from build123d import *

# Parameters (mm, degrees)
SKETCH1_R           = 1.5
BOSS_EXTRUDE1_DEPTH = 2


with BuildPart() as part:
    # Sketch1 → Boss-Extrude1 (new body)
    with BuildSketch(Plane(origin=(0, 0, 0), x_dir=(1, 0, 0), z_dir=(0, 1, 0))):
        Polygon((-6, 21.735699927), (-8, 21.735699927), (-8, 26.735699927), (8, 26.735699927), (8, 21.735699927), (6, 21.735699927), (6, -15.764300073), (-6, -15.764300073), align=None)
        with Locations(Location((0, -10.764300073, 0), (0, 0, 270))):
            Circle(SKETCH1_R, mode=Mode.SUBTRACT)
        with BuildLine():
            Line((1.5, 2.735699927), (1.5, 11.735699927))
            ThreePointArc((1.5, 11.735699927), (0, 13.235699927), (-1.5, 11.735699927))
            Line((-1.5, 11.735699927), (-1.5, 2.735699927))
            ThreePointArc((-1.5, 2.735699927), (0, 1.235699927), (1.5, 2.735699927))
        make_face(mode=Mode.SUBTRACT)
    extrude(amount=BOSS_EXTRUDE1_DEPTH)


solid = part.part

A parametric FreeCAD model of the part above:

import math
import FreeCAD as App
import Part
import Sketcher


def add_polygon(sketch, points):
    """Adds a closed chain of lines whose ends are joined by coincident constraints."""
    first, n = sketch.GeometryCount, len(points)
    for a, b in zip(points, points[1:] + points[:1]):
        sketch.addGeometry(Part.LineSegment(App.Vector(*a, 0), App.Vector(*b, 0)), False)
    for i in range(n):
        sketch.addConstraint(Sketcher.Constraint("Coincident", first + i, 2, first + (i + 1) % n, 1))

doc = App.newDocument("Part")
body = doc.addObject("PartDesign::Body", "Body")

sketch1 = body.newObject("Sketcher::SketchObject", "Sketch")
sketch1.AttachmentSupport = (doc.getObject("XZ_Plane"), [""])
sketch1.MapMode = "FlatFace"
add_polygon(sketch1, [(-8, -21.7), (-6, -21.7), (-6, 15.8), (6, 15.8), (6, -21.7), (8, -21.7), (8, -26.7), (-8, -26.7)])
sketch1.addGeometry(Part.Circle(App.Vector(0, 10.8, 0), App.Vector(0, 0, 1), 1.5), False)
sketch1.addGeometry(Part.ArcOfCircle(Part.Circle(App.Vector(0, -2.7, 0), App.Vector(0, 0, 1), 1.5), math.radians(0), math.radians(180)), False)
sketch1.addGeometry(Part.LineSegment(App.Vector(-1.5, -2.7, 0), App.Vector(-1.5, -11.7, 0)), False)
sketch1.addGeometry(Part.ArcOfCircle(Part.Circle(App.Vector(0, -11.7, 0), App.Vector(0, 0, 1), 1.5), math.radians(180), math.radians(360)), False)
sketch1.addGeometry(Part.LineSegment(App.Vector(1.5, -11.7, 0), App.Vector(1.5, -2.7, 0)), False)
sketch1.addConstraint(Sketcher.Constraint("Tangent", 9, 2, 10, 1))
sketch1.addConstraint(Sketcher.Constraint("Tangent", 10, 2, 11, 1))
sketch1.addConstraint(Sketcher.Constraint("Tangent", 11, 2, 12, 1))
sketch1.addConstraint(Sketcher.Constraint("Tangent", 12, 2, 9, 1))
sketch1.addConstraint(Sketcher.Constraint("Horizontal", 0))
sketch1.addConstraint(Sketcher.Constraint("Vertical", 1))
sketch1.addConstraint(Sketcher.Constraint("Horizontal", 2))
sketch1.addConstraint(Sketcher.Constraint("Vertical", 3))
sketch1.addConstraint(Sketcher.Constraint("Horizontal", 4))
sketch1.addConstraint(Sketcher.Constraint("Vertical", 5))
sketch1.addConstraint(Sketcher.Constraint("Horizontal", 6))
sketch1.addConstraint(Sketcher.Constraint("Vertical", 7))
sketch1.addConstraint(Sketcher.Constraint("Vertical", 10))
sketch1.addConstraint(Sketcher.Constraint("Vertical", 12))
sketch1.addConstraint(Sketcher.Constraint("Equal", 8, 9))
sketch1.addConstraint(Sketcher.Constraint("Symmetric", 0, 2, 3, 2, -2))
sketch1.addConstraint(Sketcher.Constraint("PointOnObject", 8, 3, -2))
sketch1.addConstraint(Sketcher.Constraint("PointOnObject", 9, 3, -2))
sketch1.addConstraint(Sketcher.Constraint("Equal", 0, 4))
sketch1.addConstraint(Sketcher.Constraint("Diameter", 8, 3.0))
sketch1.addConstraint(Sketcher.Constraint("DistanceX", 0, 1, 0, 2, 2.0))
sketch1.addConstraint(Sketcher.Constraint("DistanceX", 2, 1, 2, 2, 12.0))
sketch1.addConstraint(Sketcher.Constraint("DistanceY", 5, 2, 5, 1, 5.0))
sketch1.addConstraint(Sketcher.Constraint("DistanceY", 10, 2, 10, 1, 9.0))
sketch1.addConstraint(Sketcher.Constraint("DistanceY", 1, 1, 1, 2, 37.5))
sketch1.addConstraint(Sketcher.Constraint("DistanceY", 0, 2, 11, 3, 10.0))
sketch1.addConstraint(Sketcher.Constraint("DistanceY", 8, 3, 1, 2, 5.0))
sketch1.addConstraint(Sketcher.Constraint("DistanceY", -1, 1, 8, 3, 10.7643))
pad1 = body.newObject("PartDesign::Pad", "Pad")
pad1.Profile = sketch1
pad1.Length = 2
pad1.Reversed = True

doc.recompute()
